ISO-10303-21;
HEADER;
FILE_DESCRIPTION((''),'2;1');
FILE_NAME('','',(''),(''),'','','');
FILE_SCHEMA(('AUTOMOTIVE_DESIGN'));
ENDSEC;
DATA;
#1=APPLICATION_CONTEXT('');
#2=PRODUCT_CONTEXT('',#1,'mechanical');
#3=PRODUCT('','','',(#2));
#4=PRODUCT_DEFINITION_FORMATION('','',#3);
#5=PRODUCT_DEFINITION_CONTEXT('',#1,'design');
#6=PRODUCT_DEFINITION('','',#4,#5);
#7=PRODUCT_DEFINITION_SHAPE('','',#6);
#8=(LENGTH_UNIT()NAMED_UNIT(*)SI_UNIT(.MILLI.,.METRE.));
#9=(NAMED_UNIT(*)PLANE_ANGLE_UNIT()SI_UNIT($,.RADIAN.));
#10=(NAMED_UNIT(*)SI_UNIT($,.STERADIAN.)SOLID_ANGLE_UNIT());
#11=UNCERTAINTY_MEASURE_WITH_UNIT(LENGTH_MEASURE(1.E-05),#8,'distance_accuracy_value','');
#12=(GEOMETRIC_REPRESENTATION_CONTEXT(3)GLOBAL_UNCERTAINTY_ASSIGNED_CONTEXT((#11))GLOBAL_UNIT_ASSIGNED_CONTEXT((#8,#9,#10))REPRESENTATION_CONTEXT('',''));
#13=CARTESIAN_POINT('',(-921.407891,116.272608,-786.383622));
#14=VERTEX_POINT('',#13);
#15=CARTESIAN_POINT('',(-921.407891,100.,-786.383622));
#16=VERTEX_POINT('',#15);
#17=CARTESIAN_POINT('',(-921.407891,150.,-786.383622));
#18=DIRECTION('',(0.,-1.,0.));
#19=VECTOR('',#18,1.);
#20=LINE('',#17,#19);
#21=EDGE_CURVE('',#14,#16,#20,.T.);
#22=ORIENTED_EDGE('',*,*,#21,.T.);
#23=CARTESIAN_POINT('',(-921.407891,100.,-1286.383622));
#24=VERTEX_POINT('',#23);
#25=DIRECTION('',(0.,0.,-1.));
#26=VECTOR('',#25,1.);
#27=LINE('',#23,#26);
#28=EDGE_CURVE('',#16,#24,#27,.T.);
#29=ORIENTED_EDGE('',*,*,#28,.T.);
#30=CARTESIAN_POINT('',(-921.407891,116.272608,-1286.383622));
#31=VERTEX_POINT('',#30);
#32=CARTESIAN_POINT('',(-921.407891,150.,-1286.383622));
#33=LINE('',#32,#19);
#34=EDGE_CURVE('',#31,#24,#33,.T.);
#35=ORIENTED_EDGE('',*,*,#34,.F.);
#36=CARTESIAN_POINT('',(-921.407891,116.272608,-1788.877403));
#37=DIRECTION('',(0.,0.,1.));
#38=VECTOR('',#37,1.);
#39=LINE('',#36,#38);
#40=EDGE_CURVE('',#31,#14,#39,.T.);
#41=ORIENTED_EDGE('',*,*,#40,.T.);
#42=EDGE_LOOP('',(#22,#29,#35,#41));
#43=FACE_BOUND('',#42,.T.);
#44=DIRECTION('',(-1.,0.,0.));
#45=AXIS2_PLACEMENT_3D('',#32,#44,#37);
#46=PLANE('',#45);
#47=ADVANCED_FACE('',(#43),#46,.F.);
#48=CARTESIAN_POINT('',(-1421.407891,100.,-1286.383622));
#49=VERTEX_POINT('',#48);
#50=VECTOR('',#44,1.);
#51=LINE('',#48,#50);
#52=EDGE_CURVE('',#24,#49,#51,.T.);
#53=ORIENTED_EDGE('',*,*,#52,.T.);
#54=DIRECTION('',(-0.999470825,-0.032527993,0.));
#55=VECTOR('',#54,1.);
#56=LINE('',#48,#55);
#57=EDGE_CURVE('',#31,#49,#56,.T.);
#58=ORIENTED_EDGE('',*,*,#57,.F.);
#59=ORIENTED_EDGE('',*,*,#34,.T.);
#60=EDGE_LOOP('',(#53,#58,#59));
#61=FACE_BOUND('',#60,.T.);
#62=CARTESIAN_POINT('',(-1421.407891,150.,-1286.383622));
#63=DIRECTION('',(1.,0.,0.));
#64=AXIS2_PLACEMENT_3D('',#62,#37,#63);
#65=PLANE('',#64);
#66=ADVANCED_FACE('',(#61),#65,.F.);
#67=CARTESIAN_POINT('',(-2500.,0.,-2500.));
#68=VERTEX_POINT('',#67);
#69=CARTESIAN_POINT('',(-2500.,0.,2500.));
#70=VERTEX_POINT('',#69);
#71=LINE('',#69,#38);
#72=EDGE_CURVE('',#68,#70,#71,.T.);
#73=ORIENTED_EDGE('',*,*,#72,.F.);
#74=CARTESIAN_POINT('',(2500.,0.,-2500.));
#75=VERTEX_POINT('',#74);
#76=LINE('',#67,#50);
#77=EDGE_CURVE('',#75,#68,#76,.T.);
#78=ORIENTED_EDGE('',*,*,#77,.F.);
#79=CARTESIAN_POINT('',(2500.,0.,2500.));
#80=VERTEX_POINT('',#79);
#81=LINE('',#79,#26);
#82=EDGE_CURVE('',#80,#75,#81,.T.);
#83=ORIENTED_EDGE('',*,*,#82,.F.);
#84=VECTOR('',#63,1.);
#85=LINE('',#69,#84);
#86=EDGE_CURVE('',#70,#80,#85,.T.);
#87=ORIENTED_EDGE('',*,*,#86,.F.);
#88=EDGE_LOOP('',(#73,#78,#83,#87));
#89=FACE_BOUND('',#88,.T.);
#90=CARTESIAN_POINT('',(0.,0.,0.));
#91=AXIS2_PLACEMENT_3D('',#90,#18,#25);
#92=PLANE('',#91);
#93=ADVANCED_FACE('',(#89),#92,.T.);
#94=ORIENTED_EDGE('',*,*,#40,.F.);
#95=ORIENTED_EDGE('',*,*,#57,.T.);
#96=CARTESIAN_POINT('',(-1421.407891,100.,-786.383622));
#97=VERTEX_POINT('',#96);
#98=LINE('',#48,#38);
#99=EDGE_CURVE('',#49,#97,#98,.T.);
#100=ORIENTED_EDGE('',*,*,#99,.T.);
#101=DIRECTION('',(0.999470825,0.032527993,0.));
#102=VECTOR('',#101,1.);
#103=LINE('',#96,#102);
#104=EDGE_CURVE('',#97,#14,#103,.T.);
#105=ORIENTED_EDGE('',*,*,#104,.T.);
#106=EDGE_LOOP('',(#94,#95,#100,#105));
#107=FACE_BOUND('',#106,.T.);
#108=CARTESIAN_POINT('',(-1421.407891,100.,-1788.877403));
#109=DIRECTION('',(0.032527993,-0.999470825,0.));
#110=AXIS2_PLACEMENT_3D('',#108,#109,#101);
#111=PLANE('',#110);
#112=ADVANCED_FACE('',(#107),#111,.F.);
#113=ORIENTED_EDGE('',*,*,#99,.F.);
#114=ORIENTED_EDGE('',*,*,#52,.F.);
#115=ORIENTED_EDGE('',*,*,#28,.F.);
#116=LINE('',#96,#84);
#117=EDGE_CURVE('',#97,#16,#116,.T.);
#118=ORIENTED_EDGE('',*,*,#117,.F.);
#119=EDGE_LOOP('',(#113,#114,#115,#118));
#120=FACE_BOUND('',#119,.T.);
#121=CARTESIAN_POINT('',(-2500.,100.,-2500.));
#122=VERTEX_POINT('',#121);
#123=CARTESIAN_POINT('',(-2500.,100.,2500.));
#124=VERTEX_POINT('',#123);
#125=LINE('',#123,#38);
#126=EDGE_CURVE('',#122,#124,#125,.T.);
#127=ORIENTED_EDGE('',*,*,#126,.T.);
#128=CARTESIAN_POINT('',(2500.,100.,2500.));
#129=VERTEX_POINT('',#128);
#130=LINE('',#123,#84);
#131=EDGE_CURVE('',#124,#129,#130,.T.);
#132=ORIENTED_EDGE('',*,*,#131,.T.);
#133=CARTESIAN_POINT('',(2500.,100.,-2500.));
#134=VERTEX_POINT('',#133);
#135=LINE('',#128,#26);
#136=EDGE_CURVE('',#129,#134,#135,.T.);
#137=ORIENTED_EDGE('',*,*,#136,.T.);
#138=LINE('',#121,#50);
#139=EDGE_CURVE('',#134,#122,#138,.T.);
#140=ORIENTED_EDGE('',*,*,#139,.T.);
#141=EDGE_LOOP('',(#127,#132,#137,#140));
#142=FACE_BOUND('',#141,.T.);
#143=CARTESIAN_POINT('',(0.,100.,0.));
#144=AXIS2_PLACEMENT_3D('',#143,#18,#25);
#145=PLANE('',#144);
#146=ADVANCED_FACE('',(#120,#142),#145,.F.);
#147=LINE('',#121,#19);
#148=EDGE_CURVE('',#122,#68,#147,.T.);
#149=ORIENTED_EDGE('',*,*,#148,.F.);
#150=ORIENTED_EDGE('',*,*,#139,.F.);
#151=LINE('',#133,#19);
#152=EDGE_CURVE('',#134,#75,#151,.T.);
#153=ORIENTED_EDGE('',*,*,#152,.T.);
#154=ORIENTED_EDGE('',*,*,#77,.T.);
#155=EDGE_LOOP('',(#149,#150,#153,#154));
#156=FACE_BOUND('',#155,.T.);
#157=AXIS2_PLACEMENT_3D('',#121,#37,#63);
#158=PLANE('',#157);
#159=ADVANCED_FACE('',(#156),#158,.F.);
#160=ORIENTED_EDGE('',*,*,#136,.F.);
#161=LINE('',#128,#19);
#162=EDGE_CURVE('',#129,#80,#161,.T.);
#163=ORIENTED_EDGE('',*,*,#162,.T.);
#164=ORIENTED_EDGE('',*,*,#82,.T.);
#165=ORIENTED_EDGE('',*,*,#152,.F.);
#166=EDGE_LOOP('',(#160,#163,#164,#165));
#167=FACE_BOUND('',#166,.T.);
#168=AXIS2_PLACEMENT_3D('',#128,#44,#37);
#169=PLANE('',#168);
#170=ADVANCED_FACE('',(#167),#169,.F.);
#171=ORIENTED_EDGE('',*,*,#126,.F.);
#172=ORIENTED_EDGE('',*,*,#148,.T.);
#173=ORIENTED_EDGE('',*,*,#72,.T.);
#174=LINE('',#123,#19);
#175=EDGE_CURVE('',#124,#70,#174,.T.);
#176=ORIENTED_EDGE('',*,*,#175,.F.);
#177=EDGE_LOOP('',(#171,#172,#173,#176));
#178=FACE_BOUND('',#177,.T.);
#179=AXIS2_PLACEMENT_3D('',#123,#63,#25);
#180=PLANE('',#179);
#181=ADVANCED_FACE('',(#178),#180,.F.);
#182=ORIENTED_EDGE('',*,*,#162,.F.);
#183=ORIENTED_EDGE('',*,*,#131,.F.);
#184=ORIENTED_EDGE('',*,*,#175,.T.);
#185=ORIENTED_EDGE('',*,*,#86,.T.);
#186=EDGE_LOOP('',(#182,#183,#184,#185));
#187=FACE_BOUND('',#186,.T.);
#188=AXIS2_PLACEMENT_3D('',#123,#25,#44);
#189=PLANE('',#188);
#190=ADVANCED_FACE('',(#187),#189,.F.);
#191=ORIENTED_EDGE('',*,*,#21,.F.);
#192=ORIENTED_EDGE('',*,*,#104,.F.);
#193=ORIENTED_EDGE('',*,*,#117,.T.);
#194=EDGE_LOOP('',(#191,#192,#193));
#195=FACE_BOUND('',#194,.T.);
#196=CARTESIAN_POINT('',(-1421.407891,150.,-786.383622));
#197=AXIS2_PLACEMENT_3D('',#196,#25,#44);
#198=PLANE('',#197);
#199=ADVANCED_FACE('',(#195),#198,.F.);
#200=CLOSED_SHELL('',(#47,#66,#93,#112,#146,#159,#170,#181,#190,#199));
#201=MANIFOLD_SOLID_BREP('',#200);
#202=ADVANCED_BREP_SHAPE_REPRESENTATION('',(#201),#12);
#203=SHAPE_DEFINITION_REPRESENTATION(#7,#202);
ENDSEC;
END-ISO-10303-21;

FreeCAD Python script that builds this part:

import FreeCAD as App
import Part
import Sketcher
from FreeCAD import Vector
Q = App.Units.Quantity


def add_polygon(sketch, points):
    """Adds a closed chain of lines whose ends are joined by coincident constraints."""
    first, n = sketch.GeometryCount, len(points)
    for a, b in zip(points, points[1:] + points[:1]):
        sketch.addGeometry(Part.LineSegment(App.Vector(*a, 0), App.Vector(*b, 0)), False)
    for i in range(n):
        sketch.addConstraint(Sketcher.Constraint("Coincident", first + i, 2, first + (i + 1) % n, 1))

doc = App.newDocument("Part")
body = doc.addObject("PartDesign::Body", "Body")

# Sketch on XZ plane
sketch1 = doc.addObject("Sketcher::SketchObject", "Sketch")
body.addObject(sketch1)
sketch1.AttachmentSupport = (doc.XZ_Plane, [""])
sketch1.MapMode = "FlatFace"
add_polygon(sketch1, [(-2500, -2500), (-2500, 2500), (2500, 2500), (2500, -2500)])  # lines 0-3
sketch1.addConstraint([
    Sketcher.Constraint("Vertical", 0),
    Sketcher.Constraint("Horizontal", 1),
    Sketcher.Constraint("Vertical", 2),
    Sketcher.Constraint("Horizontal", 3),
    Sketcher.Constraint("Symmetric", 0, 2, 2, 2, -1, 1),
    Sketcher.Constraint("Equal", 3, 0),
    Sketcher.Constraint("DistanceX", 1, 1, 1, 2, Q("5000 mm")),
])
pad1 = doc.addObject("PartDesign::Pad", "Pad")
body.addObject(pad1)
pad1.Profile = sketch1
pad1.Length = 100
pad1.Reversed = True

# Sketch on XZ plane
sketch2 = doc.addObject("Sketcher::SketchObject", "Sketch001")
body.addObject(sketch2)
sketch2.AttachmentSupport = (doc.XZ_Plane, [""])
sketch2.MapMode = "FlatFace"
sketch2.AttachmentOffset = App.Placement(Vector(0, 0, -100), App.Rotation())
add_polygon(sketch2, [(-1421.407891, -1286.383622), (-1421.407891, -786.383622), (-921.407891, -786.383622), (-921.407891, -1286.383622)])  # lines 0-3
sketch2.addConstraint([
    Sketcher.Constraint("Vertical", 0),
    Sketcher.Constraint("Horizontal", 1),
    Sketcher.Constraint("Vertical", 2),
    Sketcher.Constraint("Horizontal", 3),
    Sketcher.Constraint("Equal", 3, 0),
    Sketcher.Constraint("DistanceX", 1, 1, 1, 2, Q("500 mm")),
    Sketcher.Constraint("DistanceX", 0, 2, -1, 1, Q("1421.407891 mm")),
    Sketcher.Constraint("DistanceY", 0, 2, -1, 1, Q("786.383622 mm")),
])
pad2 = doc.addObject("PartDesign::Pad", "Pad001")
body.addObject(pad2)
pad2.Profile = sketch2
pad2.Length = 50
pad2.Reversed = True

# Sketch on XY plane
sketch3 = doc.addObject("Sketcher::SketchObject", "Sketch002")
body.addObject(sketch3)
sketch3.AttachmentSupport = (doc.XY_Plane, [""])
sketch3.MapMode = "FlatFace"
sketch3.AttachmentOffset = App.Placement(Vector(0, 0, -786.383622), App.Rotation())
add_polygon(sketch3, [(-1421.407891, 100), (-921.407891, 116.272608), (-921.407891, 150), (-1421.407891, 150)])  # lines 0-3
sketch3.addConstraint([
    Sketcher.Constraint("Vertical", 1),
    Sketcher.Constraint("Horizontal", 2),
    Sketcher.Constraint("Vertical", 3),
    Sketcher.Constraint("DistanceX", 2, 2, 2, 1, Q("500 mm")),
    Sketcher.Constraint("DistanceY", 3, 2, 3, 1, Q("50 mm")),
    Sketcher.Constraint("DistanceY", -1, 1, 1, 2, Q("150 mm")),
    Sketcher.Constraint("DistanceY", 1, 1, 1, 2, Q("33.727392 mm")),
    Sketcher.Constraint("DistanceX", 0, 2, -1, 1, Q("921.407891 mm")),
])
pocket1 = doc.addObject("PartDesign::Pocket", "Pocket")
body.addObject(pocket1)
pocket1.Profile = sketch3
pocket1.Length = 500

doc.recompute()
